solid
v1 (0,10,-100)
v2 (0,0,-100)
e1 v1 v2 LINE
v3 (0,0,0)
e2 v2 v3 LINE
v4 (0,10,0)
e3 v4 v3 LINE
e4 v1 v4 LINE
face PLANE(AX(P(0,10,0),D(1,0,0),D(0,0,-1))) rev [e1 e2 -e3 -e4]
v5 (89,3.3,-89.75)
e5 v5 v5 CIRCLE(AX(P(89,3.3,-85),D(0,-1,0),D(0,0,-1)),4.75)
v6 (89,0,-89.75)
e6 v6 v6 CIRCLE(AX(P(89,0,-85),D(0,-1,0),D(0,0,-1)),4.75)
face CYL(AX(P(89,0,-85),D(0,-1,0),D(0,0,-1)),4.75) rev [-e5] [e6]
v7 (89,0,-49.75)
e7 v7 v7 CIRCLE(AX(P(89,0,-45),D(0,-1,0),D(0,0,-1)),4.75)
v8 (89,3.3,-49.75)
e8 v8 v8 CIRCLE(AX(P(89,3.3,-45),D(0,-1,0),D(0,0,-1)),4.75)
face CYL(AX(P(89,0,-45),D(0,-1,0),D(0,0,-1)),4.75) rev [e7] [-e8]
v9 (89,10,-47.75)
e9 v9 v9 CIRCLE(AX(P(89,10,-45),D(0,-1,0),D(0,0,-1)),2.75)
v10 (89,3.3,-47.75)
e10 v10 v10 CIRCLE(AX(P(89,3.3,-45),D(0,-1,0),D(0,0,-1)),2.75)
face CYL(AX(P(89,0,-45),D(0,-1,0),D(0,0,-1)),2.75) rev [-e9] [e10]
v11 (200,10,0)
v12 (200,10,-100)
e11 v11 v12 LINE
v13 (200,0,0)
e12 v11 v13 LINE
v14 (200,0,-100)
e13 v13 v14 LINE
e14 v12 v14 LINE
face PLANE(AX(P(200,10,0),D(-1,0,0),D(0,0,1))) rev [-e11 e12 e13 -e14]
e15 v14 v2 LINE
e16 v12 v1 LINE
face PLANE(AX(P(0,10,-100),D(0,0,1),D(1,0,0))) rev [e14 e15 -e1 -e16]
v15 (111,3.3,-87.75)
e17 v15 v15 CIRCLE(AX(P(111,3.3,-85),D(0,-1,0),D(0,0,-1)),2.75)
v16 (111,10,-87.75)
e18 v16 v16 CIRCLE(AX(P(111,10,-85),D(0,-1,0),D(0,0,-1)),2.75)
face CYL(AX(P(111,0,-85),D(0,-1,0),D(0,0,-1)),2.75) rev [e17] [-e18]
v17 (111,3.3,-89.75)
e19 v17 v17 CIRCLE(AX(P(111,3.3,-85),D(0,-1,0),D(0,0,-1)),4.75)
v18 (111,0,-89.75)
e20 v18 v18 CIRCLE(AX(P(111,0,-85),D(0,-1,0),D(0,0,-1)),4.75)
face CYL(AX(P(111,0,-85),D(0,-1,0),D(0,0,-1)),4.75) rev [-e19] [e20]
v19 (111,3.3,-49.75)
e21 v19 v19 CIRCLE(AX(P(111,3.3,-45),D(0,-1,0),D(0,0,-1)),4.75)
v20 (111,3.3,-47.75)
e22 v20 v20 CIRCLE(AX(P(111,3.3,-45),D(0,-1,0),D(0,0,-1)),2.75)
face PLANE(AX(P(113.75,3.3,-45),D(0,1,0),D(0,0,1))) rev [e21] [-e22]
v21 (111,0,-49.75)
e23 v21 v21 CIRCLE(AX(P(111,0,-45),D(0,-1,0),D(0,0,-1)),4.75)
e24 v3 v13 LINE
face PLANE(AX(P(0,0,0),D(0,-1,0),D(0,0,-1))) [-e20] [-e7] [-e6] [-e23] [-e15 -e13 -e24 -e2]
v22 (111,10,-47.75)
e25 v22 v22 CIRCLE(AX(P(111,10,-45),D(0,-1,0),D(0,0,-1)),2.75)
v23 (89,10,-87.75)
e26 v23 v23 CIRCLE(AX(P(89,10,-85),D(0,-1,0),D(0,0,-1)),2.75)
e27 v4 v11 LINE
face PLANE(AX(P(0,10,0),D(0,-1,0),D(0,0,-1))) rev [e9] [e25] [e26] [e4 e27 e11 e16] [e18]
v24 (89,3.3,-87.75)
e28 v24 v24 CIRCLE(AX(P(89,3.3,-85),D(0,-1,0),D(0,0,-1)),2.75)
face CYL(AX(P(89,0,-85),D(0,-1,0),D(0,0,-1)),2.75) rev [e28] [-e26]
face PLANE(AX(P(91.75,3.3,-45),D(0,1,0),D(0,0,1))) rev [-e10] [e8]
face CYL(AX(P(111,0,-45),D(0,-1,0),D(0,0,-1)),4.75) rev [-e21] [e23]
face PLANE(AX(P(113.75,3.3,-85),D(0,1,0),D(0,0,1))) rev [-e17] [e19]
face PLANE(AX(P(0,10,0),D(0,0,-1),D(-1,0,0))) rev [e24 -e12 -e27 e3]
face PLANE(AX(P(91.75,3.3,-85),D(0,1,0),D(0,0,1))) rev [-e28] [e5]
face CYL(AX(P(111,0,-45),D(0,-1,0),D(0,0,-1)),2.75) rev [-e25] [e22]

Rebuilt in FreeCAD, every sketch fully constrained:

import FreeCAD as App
import Part
import Sketcher
Q = App.Units.Quantity

doc = App.newDocument("Part")
params = doc.addObject("Spreadsheet::Sheet", "Params")
for row, (alias, value) in enumerate([
    ("sketch1_width", "200 mm"),
    ("sketch1_height", "100 mm"),
    ("pad1_length", "10 mm"),
    ("sketch2_diameter", "5.5 mm"),
    ("hole_diameter", "5.5 mm"),
    ("hole_cbore_diameter", "9.5 mm"),
    ("hole_cbore_depth", "3.3 mm"),
], start=1):
    params.set(f"A{row}", alias)
    params.set(f"B{row}", "=" + value)
    params.setAlias(f"B{row}", alias)

body = doc.addObject("PartDesign::Body", "Body")

sketch1 = body.newObject("Sketcher::SketchObject", "Sketch")
sketch1.AttachmentSupport = (doc.getObject("XZ_Plane"), [""])
sketch1.MapMode = "FlatFace"
sketch1.addGeometry([
    Part.LineSegment(App.Vector(0, -100, 0), App.Vector(0, 0, 0)),
    Part.LineSegment(App.Vector(0, 0, 0), App.Vector(200, 0, 0)),
    Part.LineSegment(App.Vector(200, 0, 0), App.Vector(200, -100, 0)),
    Part.LineSegment(App.Vector(200, -100, 0), App.Vector(0, -100, 0)),
], False)
sketch1.addConstraint([
    Sketcher.Constraint("Coincident", 0, 2, 1, 1),
    Sketcher.Constraint("Coincident", 1, 2, 2, 1),
    Sketcher.Constraint("Coincident", 2, 2, 3, 1),
    Sketcher.Constraint("Coincident", 3, 2, 0, 1),
    Sketcher.Constraint("Vertical", 0),
    Sketcher.Constraint("Horizontal", 1),
    Sketcher.Constraint("Vertical", 2),
    Sketcher.Constraint("Horizontal", 3),
    Sketcher.Constraint("Coincident", 0, 2, -1, 1),
    Sketcher.Constraint("DistanceX", 1, 1, 1, 2, Q("200 mm")),
    Sketcher.Constraint("DistanceY", 0, 1, 0, 2, Q("100 mm")),
])
sketch1.setExpression("Constraints[9]", "Params.sketch1_width")
sketch1.setExpression("Constraints[10]", "Params.sketch1_height")
pad1 = body.newObject("PartDesign::Pad", "Pad")
pad1.Profile = sketch1
pad1.setExpression("Length", "Params.pad1_length")
pad1.Reversed = True

sketch2 = body.newObject("Sketcher::SketchObject", "Sketch001")
sketch2.AttachmentSupport = (doc.getObject("XZ_Plane"), [""])
sketch2.MapMode = "FlatFace"
sketch2.addGeometry([
    Part.Circle(App.Vector(89, -45, 0), App.Vector(0, 0, 1), 2.8),
    Part.Circle(App.Vector(111, -45, 0), App.Vector(0, 0, 1), 2.8),
    Part.Circle(App.Vector(111, -85, 0), App.Vector(0, 0, 1), 2.8),
    Part.Circle(App.Vector(89, -85, 0), App.Vector(0, 0, 1), 2.8),
], False)
sketch2.addConstraint([
    Sketcher.Constraint("Equal", 0, 1),
    Sketcher.Constraint("Equal", 1, 2),
    Sketcher.Constraint("Equal", 2, 3),
    Sketcher.Constraint("Horizontal", 0, 3, 1, 3),
    Sketcher.Constraint("Horizontal", 2, 3, 3, 3),
    Sketcher.Constraint("Vertical", 1, 3, 2, 3),
    Sketcher.Constraint("Vertical", 0, 3, 3, 3),
    Sketcher.Constraint("Diameter", 0, Q("5.5 mm")),
    Sketcher.Constraint("DistanceX", -1, 1, 0, 3, Q("89 mm")),
    Sketcher.Constraint("DistanceY", 0, 3, -1, 1, Q("45 mm")),
    Sketcher.Constraint("DistanceX", -1, 1, 1, 3, Q("111 mm")),
    Sketcher.Constraint("DistanceY", 2, 3, -1, 1, Q("85 mm")),
])
sketch2.setExpression("Constraints[7]", "Params.sketch2_diameter")
doc.recompute()
hole = body.newObject("PartDesign::Hole", "Hole")
hole.Profile = sketch2
hole.ThreadType = "None"
hole.setExpression("Diameter", "Params.hole_diameter")
hole.DepthType = "ThroughAll"
hole.HoleCutType = "Counterbore"
hole.setExpression("HoleCutDiameter", "Params.hole_cbore_diameter")
hole.setExpression("HoleCutDepth", "Params.hole_cbore_depth")

doc.recompute()
